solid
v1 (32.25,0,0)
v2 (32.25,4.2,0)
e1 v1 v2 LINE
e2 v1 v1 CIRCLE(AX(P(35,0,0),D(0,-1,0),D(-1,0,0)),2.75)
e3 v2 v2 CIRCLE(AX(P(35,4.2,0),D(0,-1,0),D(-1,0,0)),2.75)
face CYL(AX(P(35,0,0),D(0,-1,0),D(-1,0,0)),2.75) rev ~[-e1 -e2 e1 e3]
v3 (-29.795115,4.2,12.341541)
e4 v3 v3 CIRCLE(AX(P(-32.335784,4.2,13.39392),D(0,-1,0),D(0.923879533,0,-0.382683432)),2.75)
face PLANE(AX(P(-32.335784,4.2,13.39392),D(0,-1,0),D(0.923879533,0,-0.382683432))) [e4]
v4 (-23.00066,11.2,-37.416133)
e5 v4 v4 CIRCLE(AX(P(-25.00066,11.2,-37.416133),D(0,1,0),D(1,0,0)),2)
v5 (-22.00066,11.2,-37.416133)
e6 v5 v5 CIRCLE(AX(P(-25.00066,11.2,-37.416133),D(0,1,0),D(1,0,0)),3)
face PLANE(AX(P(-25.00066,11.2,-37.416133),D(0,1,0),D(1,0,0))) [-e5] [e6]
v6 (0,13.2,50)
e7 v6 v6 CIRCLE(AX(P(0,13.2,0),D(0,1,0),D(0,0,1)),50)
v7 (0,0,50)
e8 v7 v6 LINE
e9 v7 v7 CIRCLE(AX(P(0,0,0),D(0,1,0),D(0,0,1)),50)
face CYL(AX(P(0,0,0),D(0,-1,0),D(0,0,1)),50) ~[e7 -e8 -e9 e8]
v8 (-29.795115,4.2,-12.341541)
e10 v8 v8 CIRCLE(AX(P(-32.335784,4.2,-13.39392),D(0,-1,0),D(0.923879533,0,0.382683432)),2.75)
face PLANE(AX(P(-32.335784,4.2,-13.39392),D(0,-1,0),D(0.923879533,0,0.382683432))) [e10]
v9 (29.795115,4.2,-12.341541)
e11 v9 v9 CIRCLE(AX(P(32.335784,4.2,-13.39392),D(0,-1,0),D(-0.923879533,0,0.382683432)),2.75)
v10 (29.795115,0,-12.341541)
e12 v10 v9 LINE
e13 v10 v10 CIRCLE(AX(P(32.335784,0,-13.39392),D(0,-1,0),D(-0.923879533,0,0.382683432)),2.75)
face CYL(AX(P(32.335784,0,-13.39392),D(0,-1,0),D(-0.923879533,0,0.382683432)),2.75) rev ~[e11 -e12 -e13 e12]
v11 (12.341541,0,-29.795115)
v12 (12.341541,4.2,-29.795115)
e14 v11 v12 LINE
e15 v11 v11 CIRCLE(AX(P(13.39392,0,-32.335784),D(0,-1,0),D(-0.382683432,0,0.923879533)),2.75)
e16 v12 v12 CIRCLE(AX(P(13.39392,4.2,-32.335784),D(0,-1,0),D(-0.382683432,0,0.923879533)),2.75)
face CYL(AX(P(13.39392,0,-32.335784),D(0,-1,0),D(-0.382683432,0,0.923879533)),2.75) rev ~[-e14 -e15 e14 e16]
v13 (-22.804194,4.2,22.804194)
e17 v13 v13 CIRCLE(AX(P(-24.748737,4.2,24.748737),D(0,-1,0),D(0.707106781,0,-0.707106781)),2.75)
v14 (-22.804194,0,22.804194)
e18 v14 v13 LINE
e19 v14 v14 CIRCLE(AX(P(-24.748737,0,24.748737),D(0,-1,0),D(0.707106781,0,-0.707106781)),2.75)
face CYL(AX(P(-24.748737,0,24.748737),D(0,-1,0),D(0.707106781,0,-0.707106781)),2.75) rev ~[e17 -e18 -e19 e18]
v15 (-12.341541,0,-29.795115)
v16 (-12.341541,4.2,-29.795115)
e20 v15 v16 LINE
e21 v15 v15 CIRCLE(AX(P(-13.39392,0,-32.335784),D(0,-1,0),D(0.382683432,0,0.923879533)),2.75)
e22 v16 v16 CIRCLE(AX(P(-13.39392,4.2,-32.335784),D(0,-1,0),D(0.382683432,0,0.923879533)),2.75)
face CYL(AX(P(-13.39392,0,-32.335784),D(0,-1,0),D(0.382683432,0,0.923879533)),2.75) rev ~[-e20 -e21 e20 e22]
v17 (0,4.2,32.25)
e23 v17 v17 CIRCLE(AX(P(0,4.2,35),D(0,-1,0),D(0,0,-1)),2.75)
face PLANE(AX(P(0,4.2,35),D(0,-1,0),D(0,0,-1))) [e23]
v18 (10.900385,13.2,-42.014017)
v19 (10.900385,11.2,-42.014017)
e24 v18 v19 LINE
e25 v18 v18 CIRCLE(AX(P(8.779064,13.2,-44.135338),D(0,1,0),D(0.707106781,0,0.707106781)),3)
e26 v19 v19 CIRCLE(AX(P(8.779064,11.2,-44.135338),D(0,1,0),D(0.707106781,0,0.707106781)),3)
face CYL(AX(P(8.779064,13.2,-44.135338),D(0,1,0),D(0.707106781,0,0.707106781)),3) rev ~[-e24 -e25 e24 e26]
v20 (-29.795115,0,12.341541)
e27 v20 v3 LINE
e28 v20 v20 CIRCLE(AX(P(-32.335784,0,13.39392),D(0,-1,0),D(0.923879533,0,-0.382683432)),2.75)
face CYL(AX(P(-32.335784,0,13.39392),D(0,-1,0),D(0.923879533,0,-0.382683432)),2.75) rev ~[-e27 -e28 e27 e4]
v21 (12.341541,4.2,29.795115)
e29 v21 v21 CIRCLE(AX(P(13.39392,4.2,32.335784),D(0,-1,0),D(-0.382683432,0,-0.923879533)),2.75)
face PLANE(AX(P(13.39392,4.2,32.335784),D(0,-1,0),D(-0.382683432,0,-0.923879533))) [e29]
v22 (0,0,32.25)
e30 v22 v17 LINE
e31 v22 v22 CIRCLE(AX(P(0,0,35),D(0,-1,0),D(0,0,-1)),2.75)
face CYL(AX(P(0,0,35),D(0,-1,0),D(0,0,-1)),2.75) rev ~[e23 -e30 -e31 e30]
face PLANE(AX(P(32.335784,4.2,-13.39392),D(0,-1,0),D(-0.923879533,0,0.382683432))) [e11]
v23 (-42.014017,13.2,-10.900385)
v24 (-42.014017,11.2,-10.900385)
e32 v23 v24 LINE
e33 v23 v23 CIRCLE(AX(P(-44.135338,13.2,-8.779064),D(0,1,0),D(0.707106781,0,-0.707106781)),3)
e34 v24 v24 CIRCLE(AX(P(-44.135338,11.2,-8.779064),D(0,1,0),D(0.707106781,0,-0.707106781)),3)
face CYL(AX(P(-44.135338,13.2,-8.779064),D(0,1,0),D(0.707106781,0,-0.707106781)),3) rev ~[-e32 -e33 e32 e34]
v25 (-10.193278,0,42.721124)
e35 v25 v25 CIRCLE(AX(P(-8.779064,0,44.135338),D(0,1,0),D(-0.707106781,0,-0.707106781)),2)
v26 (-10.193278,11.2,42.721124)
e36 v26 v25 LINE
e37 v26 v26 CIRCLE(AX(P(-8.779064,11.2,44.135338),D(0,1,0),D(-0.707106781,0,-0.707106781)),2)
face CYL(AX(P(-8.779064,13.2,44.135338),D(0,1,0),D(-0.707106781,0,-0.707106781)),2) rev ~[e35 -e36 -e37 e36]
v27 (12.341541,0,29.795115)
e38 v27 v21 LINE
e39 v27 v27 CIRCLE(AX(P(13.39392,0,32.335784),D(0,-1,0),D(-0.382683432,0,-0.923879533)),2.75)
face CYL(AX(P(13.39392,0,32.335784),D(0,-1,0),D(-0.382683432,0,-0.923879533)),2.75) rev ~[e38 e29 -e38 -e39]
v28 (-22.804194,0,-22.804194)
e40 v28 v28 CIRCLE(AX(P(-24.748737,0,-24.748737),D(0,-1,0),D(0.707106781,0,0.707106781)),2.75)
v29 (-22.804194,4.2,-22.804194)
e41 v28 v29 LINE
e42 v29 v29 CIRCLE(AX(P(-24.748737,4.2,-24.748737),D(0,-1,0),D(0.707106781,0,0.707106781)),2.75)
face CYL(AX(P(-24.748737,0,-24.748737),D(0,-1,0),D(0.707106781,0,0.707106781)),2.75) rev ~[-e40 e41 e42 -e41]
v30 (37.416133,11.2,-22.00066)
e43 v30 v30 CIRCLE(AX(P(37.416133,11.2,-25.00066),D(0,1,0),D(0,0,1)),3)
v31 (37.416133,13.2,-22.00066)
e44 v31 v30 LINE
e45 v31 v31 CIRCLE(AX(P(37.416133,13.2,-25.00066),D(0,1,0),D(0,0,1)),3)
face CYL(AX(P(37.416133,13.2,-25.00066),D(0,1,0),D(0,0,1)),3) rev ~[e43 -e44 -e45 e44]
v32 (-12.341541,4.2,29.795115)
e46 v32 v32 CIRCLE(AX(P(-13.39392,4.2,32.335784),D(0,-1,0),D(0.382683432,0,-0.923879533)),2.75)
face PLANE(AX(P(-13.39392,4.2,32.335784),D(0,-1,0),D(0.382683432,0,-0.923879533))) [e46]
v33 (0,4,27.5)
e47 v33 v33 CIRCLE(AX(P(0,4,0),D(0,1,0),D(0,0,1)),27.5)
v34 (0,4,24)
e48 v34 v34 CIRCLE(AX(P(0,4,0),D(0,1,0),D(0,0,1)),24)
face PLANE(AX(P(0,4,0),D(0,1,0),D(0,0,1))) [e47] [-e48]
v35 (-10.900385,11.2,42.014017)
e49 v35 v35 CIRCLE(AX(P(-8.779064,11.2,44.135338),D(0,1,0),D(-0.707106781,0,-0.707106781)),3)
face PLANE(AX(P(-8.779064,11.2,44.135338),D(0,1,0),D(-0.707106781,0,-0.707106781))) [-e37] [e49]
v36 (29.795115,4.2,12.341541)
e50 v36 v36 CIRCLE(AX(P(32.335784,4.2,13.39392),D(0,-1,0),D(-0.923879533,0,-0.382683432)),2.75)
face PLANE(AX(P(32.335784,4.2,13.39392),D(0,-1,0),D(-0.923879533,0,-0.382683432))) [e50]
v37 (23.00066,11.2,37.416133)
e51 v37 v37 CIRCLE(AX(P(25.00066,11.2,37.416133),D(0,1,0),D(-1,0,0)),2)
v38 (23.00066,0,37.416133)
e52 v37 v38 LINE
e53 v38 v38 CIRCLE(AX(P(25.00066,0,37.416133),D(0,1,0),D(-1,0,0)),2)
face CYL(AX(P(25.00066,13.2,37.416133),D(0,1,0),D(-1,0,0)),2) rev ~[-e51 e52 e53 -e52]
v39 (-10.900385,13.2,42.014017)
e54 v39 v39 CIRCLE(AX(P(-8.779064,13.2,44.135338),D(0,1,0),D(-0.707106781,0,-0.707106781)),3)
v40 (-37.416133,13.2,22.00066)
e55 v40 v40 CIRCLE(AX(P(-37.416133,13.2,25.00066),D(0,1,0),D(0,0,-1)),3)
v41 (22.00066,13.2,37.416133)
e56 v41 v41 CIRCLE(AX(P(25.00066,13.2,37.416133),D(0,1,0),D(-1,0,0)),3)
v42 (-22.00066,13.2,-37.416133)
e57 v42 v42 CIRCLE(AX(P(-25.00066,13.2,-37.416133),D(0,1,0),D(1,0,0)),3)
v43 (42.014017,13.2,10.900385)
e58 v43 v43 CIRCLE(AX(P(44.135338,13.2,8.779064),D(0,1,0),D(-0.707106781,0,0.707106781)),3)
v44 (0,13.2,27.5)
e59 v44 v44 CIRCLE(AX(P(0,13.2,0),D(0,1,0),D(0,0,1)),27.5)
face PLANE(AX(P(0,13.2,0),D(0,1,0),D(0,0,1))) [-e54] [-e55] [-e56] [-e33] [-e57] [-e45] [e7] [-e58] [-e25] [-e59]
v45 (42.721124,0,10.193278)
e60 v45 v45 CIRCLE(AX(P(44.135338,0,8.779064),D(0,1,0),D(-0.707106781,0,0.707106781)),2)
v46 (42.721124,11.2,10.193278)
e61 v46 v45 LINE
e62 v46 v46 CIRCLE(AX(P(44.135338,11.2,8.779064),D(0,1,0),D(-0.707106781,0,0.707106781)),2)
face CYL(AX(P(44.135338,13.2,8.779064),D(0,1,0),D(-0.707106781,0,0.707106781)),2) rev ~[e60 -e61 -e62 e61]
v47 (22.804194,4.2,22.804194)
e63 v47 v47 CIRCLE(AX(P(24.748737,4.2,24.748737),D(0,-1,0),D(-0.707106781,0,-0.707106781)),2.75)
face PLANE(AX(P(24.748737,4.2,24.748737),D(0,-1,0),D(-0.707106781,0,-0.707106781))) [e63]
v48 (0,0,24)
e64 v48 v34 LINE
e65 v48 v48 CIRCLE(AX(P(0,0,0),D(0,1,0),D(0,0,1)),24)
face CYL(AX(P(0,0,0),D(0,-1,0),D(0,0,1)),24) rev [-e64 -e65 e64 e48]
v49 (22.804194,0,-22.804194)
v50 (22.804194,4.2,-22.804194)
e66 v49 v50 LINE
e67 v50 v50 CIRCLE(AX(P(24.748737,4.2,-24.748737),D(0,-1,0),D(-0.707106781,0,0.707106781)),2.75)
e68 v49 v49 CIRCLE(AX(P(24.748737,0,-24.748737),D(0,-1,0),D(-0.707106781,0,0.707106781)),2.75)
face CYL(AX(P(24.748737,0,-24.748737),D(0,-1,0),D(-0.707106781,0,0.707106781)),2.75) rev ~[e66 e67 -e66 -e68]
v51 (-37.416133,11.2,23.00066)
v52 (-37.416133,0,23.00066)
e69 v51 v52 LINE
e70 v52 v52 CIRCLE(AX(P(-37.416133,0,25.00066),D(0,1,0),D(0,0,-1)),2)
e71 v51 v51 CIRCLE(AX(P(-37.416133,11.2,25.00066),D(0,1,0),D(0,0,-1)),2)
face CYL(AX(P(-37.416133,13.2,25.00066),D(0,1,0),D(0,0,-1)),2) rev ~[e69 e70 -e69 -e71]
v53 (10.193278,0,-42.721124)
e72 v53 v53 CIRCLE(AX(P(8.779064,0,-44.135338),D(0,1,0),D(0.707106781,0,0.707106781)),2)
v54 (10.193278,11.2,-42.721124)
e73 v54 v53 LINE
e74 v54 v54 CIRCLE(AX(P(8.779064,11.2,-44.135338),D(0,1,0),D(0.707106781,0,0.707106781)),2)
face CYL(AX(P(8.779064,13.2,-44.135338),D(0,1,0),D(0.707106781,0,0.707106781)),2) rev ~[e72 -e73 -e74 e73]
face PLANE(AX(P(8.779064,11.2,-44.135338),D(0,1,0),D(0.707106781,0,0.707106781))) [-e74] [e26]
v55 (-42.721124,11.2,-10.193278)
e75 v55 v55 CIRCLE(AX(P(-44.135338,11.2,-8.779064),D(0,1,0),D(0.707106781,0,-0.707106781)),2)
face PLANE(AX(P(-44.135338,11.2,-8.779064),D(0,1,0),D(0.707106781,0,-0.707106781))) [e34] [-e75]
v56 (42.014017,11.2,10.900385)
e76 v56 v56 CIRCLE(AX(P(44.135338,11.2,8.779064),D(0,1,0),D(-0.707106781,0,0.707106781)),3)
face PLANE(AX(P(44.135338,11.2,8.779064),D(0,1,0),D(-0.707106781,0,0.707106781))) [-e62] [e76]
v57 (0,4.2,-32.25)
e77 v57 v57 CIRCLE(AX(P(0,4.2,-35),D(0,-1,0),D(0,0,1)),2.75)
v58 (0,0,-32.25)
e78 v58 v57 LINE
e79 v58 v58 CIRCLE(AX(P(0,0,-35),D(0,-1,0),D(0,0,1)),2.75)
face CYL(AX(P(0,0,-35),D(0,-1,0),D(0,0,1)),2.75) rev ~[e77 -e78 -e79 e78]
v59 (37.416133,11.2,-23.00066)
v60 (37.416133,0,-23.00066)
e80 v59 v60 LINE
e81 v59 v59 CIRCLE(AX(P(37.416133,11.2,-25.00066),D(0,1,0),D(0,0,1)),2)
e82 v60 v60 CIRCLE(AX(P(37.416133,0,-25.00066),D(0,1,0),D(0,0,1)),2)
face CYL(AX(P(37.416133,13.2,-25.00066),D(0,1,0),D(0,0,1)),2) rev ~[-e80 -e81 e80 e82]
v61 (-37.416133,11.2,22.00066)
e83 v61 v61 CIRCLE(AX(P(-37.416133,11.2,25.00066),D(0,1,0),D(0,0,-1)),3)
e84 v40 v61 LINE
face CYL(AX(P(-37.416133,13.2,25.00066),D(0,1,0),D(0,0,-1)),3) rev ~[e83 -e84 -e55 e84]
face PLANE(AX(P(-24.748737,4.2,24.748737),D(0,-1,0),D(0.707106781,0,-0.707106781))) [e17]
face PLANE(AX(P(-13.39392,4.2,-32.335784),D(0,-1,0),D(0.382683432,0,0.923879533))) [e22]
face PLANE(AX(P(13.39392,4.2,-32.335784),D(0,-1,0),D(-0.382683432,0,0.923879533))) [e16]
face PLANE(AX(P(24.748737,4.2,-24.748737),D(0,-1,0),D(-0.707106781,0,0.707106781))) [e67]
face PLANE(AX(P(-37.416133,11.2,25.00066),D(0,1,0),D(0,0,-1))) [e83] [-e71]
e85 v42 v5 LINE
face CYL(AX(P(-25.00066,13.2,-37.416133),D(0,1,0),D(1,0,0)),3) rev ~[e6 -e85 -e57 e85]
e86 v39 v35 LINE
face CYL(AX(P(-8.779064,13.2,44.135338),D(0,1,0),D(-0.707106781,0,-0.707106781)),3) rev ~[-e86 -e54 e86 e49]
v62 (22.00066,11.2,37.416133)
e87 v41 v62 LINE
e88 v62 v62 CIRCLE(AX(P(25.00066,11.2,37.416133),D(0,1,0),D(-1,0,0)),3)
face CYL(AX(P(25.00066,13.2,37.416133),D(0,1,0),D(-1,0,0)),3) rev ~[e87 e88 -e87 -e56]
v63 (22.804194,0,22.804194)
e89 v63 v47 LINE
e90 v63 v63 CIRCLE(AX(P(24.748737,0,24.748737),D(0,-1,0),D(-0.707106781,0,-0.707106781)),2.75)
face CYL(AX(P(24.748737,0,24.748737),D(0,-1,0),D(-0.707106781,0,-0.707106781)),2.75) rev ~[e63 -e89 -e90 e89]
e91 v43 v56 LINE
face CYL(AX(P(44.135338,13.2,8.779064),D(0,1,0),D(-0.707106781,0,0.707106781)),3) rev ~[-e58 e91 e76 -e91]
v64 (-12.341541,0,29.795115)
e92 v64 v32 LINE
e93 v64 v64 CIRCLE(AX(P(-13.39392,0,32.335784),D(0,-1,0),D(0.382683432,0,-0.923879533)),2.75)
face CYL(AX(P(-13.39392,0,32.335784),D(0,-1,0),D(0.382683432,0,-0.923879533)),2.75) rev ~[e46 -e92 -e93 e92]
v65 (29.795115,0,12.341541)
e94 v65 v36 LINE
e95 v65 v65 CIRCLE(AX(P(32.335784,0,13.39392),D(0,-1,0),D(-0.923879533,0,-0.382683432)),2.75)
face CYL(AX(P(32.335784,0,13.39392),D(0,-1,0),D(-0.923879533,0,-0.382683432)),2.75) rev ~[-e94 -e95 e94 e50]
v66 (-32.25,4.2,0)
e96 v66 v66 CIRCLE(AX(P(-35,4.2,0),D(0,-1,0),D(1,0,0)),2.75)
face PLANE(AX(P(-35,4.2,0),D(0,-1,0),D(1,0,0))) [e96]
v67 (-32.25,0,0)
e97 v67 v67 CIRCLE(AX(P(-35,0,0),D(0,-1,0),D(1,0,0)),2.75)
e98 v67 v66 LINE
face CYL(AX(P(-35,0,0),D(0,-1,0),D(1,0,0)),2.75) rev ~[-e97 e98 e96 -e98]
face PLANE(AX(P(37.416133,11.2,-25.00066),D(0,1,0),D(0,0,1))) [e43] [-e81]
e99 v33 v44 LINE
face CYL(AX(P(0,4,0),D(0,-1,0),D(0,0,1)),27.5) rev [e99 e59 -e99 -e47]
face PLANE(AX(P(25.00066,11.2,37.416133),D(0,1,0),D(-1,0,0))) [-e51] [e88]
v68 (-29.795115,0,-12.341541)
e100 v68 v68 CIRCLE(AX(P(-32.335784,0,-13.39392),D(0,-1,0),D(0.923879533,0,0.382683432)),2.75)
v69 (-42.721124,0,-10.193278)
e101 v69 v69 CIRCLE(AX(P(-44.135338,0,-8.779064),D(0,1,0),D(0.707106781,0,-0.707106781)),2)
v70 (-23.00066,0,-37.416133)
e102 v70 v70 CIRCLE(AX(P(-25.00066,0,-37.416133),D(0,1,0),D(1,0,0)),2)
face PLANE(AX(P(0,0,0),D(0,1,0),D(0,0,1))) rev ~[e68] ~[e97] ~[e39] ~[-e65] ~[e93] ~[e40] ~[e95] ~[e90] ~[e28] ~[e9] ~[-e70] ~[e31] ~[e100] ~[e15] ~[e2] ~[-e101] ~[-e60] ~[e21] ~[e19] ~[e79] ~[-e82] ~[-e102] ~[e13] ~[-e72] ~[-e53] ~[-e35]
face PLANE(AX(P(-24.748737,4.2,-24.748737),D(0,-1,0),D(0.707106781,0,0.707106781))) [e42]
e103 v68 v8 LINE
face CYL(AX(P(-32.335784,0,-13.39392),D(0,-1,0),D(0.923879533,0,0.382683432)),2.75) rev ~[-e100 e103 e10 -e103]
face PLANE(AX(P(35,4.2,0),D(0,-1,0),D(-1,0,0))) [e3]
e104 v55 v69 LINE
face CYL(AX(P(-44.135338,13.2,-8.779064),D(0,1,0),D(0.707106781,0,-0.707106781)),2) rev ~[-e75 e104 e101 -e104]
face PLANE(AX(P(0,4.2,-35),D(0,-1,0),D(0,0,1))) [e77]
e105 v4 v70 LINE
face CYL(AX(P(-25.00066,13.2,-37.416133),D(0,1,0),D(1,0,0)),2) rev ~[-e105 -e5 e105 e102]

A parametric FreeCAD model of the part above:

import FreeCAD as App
import Part
import Sketcher
from FreeCAD import Vector

doc = App.newDocument("Part")
body = doc.addObject("PartDesign::Body", "Body")

sketch1 = body.newObject("Sketcher::SketchObject", "Sketch")
sketch1.AttachmentSupport = (doc.getObject("XZ_Plane"), [""])
sketch1.MapMode = "FlatFace"
sketch1.addGeometry([
    Part.Circle(Vector(0, 0, 0), Vector(0, 0, 1), 50),
    Part.Circle(Vector(0, 0, 0), Vector(0, 0, 1), 24),
], False)
sketch1.addConstraint([
    Sketcher.Constraint("Coincident", 0, 3, -1, 1),
    Sketcher.Constraint("Coincident", 1, 3, -1, 1),
    Sketcher.Constraint("Diameter", 0, 100.0),
    Sketcher.Constraint("Diameter", 1, 48.0),
])
pad1 = body.newObject("PartDesign::Pad", "Pad")
pad1.Profile = sketch1
pad1.Length = 13.2
pad1.Reversed = True

sketch2 = body.newObject("Sketcher::SketchObject", "Sketch001")
sketch2.AttachmentSupport = (doc.getObject("XZ_Plane"), [""])
sketch2.MapMode = "FlatFace"
sketch2.AttachmentOffset = App.Placement(Vector(0, 0, -13.2), App.Rotation())
sketch2.addGeometry(Part.Circle(Vector(37.4, -25, 0), Vector(0, 0, 1), 2), False)
sketch2.addConstraint([
    Sketcher.Constraint("Diameter", 0, 4.0),
    Sketcher.Constraint("DistanceY", 0, 3, -1, 1, 25.00066),
    Sketcher.Constraint("DistanceX", -1, 1, 0, 3, 37.416133),
])
pocket1 = body.newObject("PartDesign::Pocket", "Pocket")
pocket1.Profile = sketch2
pocket1.Length = 13.2
pocket1.Reversed = True

sketch3 = body.newObject("Sketcher::SketchObject", "Sketch002")
sketch3.AttachmentSupport = (doc.getObject("XZ_Plane"), [""])
sketch3.MapMode = "FlatFace"
sketch3.AttachmentOffset = App.Placement(Vector(0, 0, -13.2), App.Rotation())
sketch3.addGeometry(Part.Circle(Vector(37.4, -25, 0), Vector(0, 0, 1), 3), False)
sketch3.addConstraint([
    Sketcher.Constraint("Diameter", 0, 6.0),
    Sketcher.Constraint("DistanceY", 0, 3, -1, 1, 25.00066),
    Sketcher.Constraint("DistanceX", -1, 1, 0, 3, 37.416133),
])
pocket2 = body.newObject("PartDesign::Pocket", "Pocket001")
pocket2.Profile = sketch3
pocket2.Length = 2
pocket2.Reversed = True
doc.recompute()

polarpattern = body.newObject("PartDesign::PolarPattern", "PolarPattern")
polarpattern.Originals = [pocket1]
polarpattern.Axis = (doc.getObject("Y_Axis"), [""])
polarpattern.Angle = 360
polarpattern.Occurrences = 8
body.Tip = polarpattern
doc.recompute()

polarpattern2 = body.newObject("PartDesign::PolarPattern", "PolarPattern001")
polarpattern2.Originals = [pocket2]
polarpattern2.Axis = (doc.getObject("Y_Axis"), [""])
polarpattern2.Angle = 360
polarpattern2.Occurrences = 8
body.Tip = polarpattern2

sketch4 = body.newObject("Sketcher::SketchObject", "Sketch003")
sketch4.AttachmentSupport = (doc.getObject("XZ_Plane"), [""])
sketch4.MapMode = "FlatFace"
sketch4.addGeometry(Part.Circle(Vector(0, 35, 0), Vector(0, 0, 1), 2.8), False)
sketch4.addConstraint([
    Sketcher.Constraint("PointOnObject", 0, 3, -2),
    Sketcher.Constraint("Diameter", 0, 5.5),
    Sketcher.Constraint("DistanceY", -1, 1, 0, 3, 35.0),
])
pocket3 = body.newObject("PartDesign::Pocket", "Pocket002")
pocket3.Profile = sketch4
pocket3.Length = 4.2
doc.recompute()

polarpattern3 = body.newObject("PartDesign::PolarPattern", "PolarPattern002")
polarpattern3.Originals = [pocket3]
polarpattern3.Axis = (doc.getObject("Y_Axis"), [""])
polarpattern3.Angle = 360
polarpattern3.Occurrences = 16
body.Tip = polarpattern3

sketch5 = body.newObject("Sketcher::SketchObject", "Sketch004")
sketch5.AttachmentSupport = (doc.getObject("XZ_Plane"), [""])
sketch5.MapMode = "FlatFace"
sketch5.AttachmentOffset = App.Placement(Vector(0, 0, -4), App.Rotation())
sketch5.addGeometry([
    Part.Circle(Vector(0, 0, 0), Vector(0, 0, 1), 28),
    Part.Circle(Vector(0, 0, 0), Vector(0, 0, 1), 24),
], False)
sketch5.addConstraint([
    Sketcher.Constraint("Coincident", 0, 3, -1, 1),
    Sketcher.Constraint("Coincident", 1, 3, -1, 1),
    Sketcher.Constraint("Diameter", 0, 55.0),
    Sketcher.Constraint("Diameter", 1, 48.0),
])
pocket4 = body.newObject("PartDesign::Pocket", "Pocket003")
pocket4.Profile = sketch5
pocket4.Length = 9.2

doc.recompute()
